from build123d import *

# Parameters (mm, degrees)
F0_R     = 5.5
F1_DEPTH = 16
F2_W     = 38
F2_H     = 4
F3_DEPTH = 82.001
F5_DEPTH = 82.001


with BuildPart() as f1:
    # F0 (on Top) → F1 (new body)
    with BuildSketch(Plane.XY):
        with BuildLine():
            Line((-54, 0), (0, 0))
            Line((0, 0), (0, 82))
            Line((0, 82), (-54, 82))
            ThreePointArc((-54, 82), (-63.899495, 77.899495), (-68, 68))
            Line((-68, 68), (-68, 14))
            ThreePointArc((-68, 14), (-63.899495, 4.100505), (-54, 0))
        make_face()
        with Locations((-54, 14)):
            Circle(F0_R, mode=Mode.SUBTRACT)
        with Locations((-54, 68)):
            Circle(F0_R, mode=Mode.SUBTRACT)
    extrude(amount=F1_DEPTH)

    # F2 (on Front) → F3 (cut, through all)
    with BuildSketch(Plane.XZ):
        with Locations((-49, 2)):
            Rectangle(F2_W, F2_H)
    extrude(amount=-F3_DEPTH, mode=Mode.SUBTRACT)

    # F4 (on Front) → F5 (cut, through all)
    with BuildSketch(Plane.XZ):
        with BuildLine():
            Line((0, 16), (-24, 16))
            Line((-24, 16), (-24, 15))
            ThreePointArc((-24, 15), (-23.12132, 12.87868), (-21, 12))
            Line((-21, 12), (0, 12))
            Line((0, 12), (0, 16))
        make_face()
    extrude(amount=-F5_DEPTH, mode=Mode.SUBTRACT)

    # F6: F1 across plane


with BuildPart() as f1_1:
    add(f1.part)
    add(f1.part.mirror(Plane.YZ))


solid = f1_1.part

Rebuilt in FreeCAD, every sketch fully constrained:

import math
import FreeCAD as App
import Part
import Sketcher


def add_polygon(sketch, points):
    """Adds a closed chain of lines whose ends are joined by coincident constraints."""
    first, n = sketch.GeometryCount, len(points)
    for a, b in zip(points, points[1:] + points[:1]):
        sketch.addGeometry(Part.LineSegment(App.Vector(*a, 0), App.Vector(*b, 0)), False)
    for i in range(n):
        sketch.addConstraint(Sketcher.Constraint("Coincident", first + i, 2, first + (i + 1) % n, 1))

doc = App.newDocument("Part")
body = doc.addObject("PartDesign::Body", "Body")

# Sketch on XY plane
sketch1 = body.newObject("Sketcher::SketchObject", "Sketch")
sketch1.AttachmentSupport = (doc.getObject("XY_Plane"), [""])
sketch1.MapMode = "FlatFace"
sketch1.addGeometry(Part.LineSegment(App.Vector(-54, 0, 0), App.Vector(0, 0, 0)), False)
sketch1.addGeometry(Part.LineSegment(App.Vector(0, 0, 0), App.Vector(0, 82, 0)), False)
sketch1.addGeometry(Part.LineSegment(App.Vector(0, 82, 0), App.Vector(-54, 82, 0)), False)
sketch1.addGeometry(Part.ArcOfCircle(Part.Circle(App.Vector(-54, 68, 0), App.Vector(0, 0, 1), 14), math.radians(89.999999), math.radians(180.000001)), False)
sketch1.addGeometry(Part.LineSegment(App.Vector(-68, 68, 0), App.Vector(-68, 14, 0)), False)
sketch1.addGeometry(Part.ArcOfCircle(Part.Circle(App.Vector(-54, 14, 0), App.Vector(0, 0, 1), 14), math.radians(179.999999), math.radians(270.000001)), False)
sketch1.addGeometry(Part.Circle(App.Vector(-54, 14, 0), App.Vector(0, 0, 1), 5.5), False)
sketch1.addGeometry(Part.Circle(App.Vector(-54, 68, 0), App.Vector(0, 0, 1), 5.5), False)
sketch1.addConstraint(Sketcher.Constraint("Coincident", 0, 2, 1, 1))
sketch1.addConstraint(Sketcher.Constraint("Coincident", 1, 2, 2, 1))
sketch1.addConstraint(Sketcher.Constraint("Tangent", 2, 2, 3, 1))
sketch1.addConstraint(Sketcher.Constraint("Tangent", 3, 2, 4, 1))
sketch1.addConstraint(Sketcher.Constraint("Tangent", 4, 2, 5, 1))
sketch1.addConstraint(Sketcher.Constraint("Tangent", 5, 2, 0, 1))
sketch1.addConstraint(Sketcher.Constraint("Horizontal", 0))
sketch1.addConstraint(Sketcher.Constraint("Vertical", 1))
sketch1.addConstraint(Sketcher.Constraint("Horizontal", 2))
sketch1.addConstraint(Sketcher.Constraint("Vertical", 4))
sketch1.addConstraint(Sketcher.Constraint("Coincident", 0, 2, -1, 1))
sketch1.addConstraint(Sketcher.Constraint("Coincident", 6, 3, 5, 3))
sketch1.addConstraint(Sketcher.Constraint("Coincident", 7, 3, 3, 3))
sketch1.addConstraint(Sketcher.Constraint("Equal", 3, 5))
sketch1.addConstraint(Sketcher.Constraint("Equal", 6, 7))
sketch1.addConstraint(Sketcher.Constraint("Equal", 2, 4))
sketch1.addConstraint(Sketcher.Constraint("Diameter", 6, 11.0))
sketch1.addConstraint(Sketcher.Constraint("Radius", 3, 14.0))
sketch1.addConstraint(Sketcher.Constraint("DistanceX", 0, 1, 0, 2, 54.0))
pad1 = body.newObject("PartDesign::Pad", "Pad")
pad1.Profile = sketch1
pad1.Length = 16

# Sketch on XZ plane
sketch2 = body.newObject("Sketcher::SketchObject", "Sketch001")
sketch2.AttachmentSupport = (doc.getObject("XZ_Plane"), [""])
sketch2.MapMode = "FlatFace"
add_polygon(sketch2, [(-68, 4), (-68, 0), (-30, 0), (-30, 4)])  # lines 0-3
sketch2.addConstraint(Sketcher.Constraint("Vertical", 0))
sketch2.addConstraint(Sketcher.Constraint("Horizontal", 1))
sketch2.addConstraint(Sketcher.Constraint("Vertical", 2))
sketch2.addConstraint(Sketcher.Constraint("Horizontal", 3))
sketch2.addConstraint(Sketcher.Constraint("PointOnObject", 0, 2, -1))
sketch2.addConstraint(Sketcher.Constraint("DistanceX", 1, 1, 1, 2, 38.0))
sketch2.addConstraint(Sketcher.Constraint("DistanceY", 0, 2, 0, 1, 4.0))
sketch2.addConstraint(Sketcher.Constraint("DistanceX", 0, 2, -1, 1, 68.0))
pocket1 = body.newObject("PartDesign::Pocket", "Pocket")
pocket1.Profile = sketch2
pocket1.Type = "ThroughAll"

# Sketch on XZ plane
sketch3 = body.newObject("Sketcher::SketchObject", "Sketch002")
sketch3.AttachmentSupport = (doc.getObject("XZ_Plane"), [""])
sketch3.MapMode = "FlatFace"
sketch3.addGeometry(Part.LineSegment(App.Vector(0, 16, 0), App.Vector(-24, 16, 0)), False)
sketch3.addGeometry(Part.LineSegment(App.Vector(-24, 16, 0), App.Vector(-24, 15, 0)), False)
sketch3.addGeometry(Part.ArcOfCircle(Part.Circle(App.Vector(-20.999999, 15.000001, 0), App.Vector(0, 0, 1), 3.000001), math.radians(-179.999978), math.radians(-90.000022)), False)
sketch3.addGeometry(Part.LineSegment(App.Vector(-21, 12, 0), App.Vector(0, 12, 0)), False)
sketch3.addGeometry(Part.LineSegment(App.Vector(0, 12, 0), App.Vector(0, 16, 0)), False)
sketch3.addConstraint(Sketcher.Constraint("Coincident", 0, 2, 1, 1))
sketch3.addConstraint(Sketcher.Constraint("Tangent", 1, 2, 2, 1))
sketch3.addConstraint(Sketcher.Constraint("Tangent", 2, 2, 3, 1))
sketch3.addConstraint(Sketcher.Constraint("Coincident", 3, 2, 4, 1))
sketch3.addConstraint(Sketcher.Constraint("Coincident", 4, 2, 0, 1))
sketch3.addConstraint(Sketcher.Constraint("Horizontal", 0))
sketch3.addConstraint(Sketcher.Constraint("Vertical", 1))
sketch3.addConstraint(Sketcher.Constraint("Horizontal", 3))
sketch3.addConstraint(Sketcher.Constraint("Vertical", 4))
sketch3.addConstraint(Sketcher.Constraint("PointOnObject", 3, 2, -2))
sketch3.addConstraint(Sketcher.Constraint("Radius", 2, 3.000001))
sketch3.addConstraint(Sketcher.Constraint("DistanceX", 0, 2, 0, 1, 24.0))
sketch3.addConstraint(Sketcher.Constraint("DistanceY", 1, 2, 1, 1, 1.0))
sketch3.addConstraint(Sketcher.Constraint("DistanceY", -1, 1, 2, 3, 15.000001))
pocket2 = body.newObject("PartDesign::Pocket", "Pocket001")
pocket2.Profile = sketch3
pocket2.Type = "ThroughAll"
body2 = doc.addObject("PartDesign::Body", "Body001")
doc.recompute()

body2.BaseFeature = body
doc.recompute()

mirroring = doc.addObject("Part::Mirroring", "Mirroring")
mirroring.Source = body
mirroring.Base = App.Vector(0, 0, 0)
mirroring.Normal = App.Vector(1, 0, 0)
body3 = doc.addObject("PartDesign::Body", "Body002")
body3.BaseFeature = mirroring
boolean = body2.newObject("PartDesign::Boolean", "Boolean")
boolean.Type = "Fuse"
boolean.addObjects([body3])
doc.recompute()
mirroring.Visibility = False

doc.recompute()
